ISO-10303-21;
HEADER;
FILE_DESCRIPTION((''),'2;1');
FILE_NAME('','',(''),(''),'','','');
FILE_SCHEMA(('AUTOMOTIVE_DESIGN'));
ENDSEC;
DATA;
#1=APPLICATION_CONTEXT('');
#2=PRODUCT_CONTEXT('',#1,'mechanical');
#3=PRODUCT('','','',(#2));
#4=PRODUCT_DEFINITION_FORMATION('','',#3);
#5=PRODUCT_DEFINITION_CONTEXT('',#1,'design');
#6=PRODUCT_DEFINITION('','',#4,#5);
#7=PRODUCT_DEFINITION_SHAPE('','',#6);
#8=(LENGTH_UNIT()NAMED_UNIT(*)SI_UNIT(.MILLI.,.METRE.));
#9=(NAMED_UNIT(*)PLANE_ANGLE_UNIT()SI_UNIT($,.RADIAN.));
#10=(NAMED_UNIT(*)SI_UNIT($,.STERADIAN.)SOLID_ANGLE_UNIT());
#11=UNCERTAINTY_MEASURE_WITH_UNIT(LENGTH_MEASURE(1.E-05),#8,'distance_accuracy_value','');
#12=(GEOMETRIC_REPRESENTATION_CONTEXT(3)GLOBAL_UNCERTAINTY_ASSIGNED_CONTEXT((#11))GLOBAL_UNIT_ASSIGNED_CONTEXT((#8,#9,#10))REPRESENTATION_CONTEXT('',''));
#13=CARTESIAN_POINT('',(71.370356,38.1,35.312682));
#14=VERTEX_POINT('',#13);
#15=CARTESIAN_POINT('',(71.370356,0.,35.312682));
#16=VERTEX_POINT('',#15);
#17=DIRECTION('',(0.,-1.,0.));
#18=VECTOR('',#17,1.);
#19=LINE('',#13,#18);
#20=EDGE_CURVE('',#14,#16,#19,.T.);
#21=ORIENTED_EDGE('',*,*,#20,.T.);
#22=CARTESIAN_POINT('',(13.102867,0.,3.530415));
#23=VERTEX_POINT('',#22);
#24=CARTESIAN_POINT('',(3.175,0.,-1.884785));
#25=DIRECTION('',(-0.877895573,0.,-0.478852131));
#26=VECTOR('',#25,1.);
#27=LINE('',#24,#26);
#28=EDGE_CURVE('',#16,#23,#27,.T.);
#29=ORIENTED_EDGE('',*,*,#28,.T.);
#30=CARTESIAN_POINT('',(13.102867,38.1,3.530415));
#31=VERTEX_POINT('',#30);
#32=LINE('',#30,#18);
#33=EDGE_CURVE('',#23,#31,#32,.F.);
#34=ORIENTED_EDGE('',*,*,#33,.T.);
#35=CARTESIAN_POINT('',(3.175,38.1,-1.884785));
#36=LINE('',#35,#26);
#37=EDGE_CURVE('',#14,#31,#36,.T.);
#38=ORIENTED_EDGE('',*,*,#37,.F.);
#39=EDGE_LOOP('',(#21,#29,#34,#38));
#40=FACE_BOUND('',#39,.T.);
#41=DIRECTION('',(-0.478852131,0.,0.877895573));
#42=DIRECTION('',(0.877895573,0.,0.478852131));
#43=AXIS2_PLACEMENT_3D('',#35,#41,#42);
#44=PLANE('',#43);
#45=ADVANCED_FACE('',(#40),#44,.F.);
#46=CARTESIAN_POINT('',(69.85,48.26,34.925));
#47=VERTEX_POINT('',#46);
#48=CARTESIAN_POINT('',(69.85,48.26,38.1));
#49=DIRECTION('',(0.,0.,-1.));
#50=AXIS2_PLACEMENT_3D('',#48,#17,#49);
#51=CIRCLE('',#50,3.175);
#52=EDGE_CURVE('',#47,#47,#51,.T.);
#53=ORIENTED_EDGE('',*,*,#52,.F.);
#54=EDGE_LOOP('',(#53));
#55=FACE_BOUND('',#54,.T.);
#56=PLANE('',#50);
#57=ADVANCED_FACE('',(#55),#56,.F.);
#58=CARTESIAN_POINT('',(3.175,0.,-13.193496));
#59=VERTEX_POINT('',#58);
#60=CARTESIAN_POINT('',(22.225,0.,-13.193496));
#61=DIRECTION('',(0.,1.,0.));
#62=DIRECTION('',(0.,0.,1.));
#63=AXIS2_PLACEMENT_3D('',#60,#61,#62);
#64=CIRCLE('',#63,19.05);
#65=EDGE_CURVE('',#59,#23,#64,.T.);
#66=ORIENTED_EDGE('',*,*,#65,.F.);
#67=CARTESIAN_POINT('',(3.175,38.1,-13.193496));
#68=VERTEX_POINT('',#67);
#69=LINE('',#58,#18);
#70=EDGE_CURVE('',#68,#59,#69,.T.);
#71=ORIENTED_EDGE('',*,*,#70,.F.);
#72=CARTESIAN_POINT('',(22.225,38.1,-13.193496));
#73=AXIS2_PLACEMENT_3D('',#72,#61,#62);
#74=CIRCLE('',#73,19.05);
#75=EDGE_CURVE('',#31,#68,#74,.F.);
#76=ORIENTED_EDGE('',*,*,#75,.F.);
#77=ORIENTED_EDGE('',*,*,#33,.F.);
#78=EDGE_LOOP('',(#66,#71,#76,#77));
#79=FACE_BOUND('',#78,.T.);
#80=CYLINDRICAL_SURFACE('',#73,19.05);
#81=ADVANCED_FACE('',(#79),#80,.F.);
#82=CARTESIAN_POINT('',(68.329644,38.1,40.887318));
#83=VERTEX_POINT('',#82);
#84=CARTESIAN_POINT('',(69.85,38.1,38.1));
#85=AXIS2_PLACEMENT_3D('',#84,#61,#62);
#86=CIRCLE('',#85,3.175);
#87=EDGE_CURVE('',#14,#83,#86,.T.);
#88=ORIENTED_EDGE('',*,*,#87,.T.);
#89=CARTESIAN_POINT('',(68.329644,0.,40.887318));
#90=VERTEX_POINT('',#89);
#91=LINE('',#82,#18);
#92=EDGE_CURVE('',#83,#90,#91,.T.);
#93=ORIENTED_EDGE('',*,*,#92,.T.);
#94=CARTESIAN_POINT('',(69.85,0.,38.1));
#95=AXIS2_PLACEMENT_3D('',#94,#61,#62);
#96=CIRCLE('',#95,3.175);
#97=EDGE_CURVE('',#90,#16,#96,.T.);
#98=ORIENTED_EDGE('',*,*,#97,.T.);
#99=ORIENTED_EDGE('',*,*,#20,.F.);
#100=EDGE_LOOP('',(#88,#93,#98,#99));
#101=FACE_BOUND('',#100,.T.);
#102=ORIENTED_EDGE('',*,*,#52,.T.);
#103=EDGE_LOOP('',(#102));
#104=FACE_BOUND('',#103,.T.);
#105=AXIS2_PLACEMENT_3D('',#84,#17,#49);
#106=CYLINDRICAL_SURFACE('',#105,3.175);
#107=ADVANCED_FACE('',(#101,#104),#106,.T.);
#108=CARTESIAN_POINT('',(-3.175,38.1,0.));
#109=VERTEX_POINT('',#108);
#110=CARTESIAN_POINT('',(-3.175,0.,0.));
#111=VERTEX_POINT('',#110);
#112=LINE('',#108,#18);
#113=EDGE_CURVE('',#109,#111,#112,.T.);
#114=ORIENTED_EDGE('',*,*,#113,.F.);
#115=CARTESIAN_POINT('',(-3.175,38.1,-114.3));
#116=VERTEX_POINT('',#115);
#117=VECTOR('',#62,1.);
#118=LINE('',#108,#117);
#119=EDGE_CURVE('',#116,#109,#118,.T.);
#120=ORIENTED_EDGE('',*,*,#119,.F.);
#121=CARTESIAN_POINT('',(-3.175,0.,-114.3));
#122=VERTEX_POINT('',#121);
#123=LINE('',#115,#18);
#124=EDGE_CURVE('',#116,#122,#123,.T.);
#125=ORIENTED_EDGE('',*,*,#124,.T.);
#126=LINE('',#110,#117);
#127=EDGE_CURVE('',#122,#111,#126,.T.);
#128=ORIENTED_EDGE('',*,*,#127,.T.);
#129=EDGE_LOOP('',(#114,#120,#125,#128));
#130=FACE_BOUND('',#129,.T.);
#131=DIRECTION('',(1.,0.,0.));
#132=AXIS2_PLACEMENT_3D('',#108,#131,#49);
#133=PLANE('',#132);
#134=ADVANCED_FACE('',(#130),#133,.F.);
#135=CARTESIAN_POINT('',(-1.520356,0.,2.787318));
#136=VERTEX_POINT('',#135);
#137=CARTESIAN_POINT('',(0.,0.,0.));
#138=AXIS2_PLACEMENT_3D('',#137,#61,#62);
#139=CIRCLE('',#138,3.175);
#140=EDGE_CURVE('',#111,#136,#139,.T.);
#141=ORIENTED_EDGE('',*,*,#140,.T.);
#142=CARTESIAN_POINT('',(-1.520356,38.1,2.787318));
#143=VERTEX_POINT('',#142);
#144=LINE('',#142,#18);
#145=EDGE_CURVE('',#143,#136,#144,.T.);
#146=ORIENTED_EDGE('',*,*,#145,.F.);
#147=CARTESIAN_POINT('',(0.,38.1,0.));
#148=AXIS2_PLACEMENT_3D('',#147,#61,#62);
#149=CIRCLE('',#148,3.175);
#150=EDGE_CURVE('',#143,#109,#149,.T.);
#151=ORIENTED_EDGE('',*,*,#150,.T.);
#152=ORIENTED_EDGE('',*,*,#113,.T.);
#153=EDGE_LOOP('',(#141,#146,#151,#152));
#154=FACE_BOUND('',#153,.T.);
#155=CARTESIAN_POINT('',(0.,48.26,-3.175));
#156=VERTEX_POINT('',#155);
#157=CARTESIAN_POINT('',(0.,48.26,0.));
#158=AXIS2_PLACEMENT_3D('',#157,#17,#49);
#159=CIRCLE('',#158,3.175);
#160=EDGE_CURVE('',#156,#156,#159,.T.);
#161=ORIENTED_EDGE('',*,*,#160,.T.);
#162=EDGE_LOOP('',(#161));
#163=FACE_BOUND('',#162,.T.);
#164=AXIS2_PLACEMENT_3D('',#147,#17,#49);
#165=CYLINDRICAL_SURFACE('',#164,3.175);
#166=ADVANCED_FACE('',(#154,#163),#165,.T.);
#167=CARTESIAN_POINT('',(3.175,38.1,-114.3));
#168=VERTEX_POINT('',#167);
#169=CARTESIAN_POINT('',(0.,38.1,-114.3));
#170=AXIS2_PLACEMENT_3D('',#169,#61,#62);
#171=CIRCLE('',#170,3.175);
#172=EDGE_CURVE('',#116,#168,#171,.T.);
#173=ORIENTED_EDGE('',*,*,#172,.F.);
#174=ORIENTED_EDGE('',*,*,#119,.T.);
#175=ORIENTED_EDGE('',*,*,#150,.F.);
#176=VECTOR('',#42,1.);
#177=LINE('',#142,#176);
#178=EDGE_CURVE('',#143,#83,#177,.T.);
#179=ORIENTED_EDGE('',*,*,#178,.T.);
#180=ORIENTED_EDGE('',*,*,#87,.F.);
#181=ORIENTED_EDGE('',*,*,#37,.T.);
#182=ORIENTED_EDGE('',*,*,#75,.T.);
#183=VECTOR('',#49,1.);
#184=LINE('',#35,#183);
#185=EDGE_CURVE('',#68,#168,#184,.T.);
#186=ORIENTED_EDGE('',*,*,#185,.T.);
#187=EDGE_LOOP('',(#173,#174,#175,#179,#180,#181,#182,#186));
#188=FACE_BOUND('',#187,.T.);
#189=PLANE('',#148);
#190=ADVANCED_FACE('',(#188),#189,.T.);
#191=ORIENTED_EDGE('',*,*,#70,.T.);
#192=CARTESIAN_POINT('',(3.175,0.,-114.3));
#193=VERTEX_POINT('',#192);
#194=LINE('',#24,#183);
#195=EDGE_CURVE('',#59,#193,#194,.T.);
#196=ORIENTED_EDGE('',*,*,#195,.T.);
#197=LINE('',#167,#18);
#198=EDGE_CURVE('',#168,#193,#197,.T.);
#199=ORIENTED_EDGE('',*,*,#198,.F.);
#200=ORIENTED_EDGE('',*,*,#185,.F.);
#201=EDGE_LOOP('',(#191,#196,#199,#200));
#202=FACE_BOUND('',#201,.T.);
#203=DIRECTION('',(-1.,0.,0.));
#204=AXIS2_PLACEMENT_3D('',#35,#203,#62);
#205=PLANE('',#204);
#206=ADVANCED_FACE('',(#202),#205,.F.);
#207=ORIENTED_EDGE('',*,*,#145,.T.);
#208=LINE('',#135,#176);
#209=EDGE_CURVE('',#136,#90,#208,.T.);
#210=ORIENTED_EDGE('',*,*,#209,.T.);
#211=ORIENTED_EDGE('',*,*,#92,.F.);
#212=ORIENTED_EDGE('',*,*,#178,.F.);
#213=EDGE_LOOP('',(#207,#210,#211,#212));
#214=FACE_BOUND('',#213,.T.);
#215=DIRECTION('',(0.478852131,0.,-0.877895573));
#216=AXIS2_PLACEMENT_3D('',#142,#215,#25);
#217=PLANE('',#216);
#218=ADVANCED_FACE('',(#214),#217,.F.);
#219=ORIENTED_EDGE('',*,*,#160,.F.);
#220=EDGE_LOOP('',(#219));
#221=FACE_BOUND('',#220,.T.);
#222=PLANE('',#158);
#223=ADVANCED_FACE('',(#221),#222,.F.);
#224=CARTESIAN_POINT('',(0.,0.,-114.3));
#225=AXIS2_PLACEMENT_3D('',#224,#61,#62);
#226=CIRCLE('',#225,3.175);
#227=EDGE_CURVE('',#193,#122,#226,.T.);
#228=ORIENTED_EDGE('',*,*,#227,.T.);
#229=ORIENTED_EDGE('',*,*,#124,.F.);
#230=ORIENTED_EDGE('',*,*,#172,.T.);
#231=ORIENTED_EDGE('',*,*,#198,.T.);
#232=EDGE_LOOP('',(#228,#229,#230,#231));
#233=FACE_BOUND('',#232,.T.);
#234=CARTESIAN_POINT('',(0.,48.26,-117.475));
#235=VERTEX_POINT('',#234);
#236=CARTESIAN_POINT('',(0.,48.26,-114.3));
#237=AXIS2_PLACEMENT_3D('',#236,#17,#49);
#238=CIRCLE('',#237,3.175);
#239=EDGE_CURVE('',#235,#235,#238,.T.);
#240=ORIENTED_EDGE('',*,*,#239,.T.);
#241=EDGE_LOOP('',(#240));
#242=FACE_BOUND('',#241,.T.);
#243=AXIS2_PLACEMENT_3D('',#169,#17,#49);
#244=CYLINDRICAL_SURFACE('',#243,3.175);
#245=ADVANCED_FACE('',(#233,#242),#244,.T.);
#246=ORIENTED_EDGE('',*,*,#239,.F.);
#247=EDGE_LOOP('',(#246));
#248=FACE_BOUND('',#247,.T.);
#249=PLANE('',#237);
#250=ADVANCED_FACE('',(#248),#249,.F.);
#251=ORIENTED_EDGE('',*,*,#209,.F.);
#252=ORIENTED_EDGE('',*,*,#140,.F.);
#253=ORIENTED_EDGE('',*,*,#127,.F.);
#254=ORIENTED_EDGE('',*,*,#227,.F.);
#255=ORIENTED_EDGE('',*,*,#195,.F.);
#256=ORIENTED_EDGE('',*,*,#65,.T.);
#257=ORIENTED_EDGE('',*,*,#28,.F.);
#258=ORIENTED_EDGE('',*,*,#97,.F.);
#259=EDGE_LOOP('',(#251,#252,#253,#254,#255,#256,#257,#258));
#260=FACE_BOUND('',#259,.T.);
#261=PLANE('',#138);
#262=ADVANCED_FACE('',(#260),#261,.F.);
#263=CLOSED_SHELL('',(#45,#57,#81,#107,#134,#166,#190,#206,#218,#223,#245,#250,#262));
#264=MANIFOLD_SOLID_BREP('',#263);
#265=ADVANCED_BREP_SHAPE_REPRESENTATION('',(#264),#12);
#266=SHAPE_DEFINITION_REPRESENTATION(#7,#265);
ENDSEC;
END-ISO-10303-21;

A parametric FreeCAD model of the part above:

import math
import FreeCAD as App
import Part
import Sketcher

V = App.Vector
Q = App.Units.Quantity


def edges_at(feature, points):
    """Names of the edges that pass closest to the given points."""
    edges = feature.Shape.Edges
    near = lambda p: min(range(len(edges)), key=lambda i: edges[i].distToShape(Part.Vertex(*p))[0])
    return sorted({f"Edge{near(p) + 1}" for p in points})

doc = App.newDocument("Part")
body = doc.addObject("PartDesign::Body", "Body")

# Sketch on XZ plane
sketch1 = body.newObject("Sketcher::SketchObject", "Sketch")
sketch1.AttachmentSupport = (doc.getObject("XZ_Plane"), [""])
sketch1.MapMode = "FlatFace"
sketch1.addGeometry([
    Part.LineSegment(V(-3.2, -114.3, 0), V(-3.2, 0, 0)),  # 0
    Part.ArcOfCircle(Part.Circle(V(0, 0, 0), V(0, 0, 1), 3.2), math.radians(119), math.radians(180)),  # 1
    Part.LineSegment(V(-1.5, 2.8, 0), V(68.3, 40.9, 0)),  # 2
    Part.ArcOfCircle(Part.Circle(V(69.8, 38.1, 0), V(0, 0, 1), 3.2), math.radians(-61), math.radians(119)),  # 3
    Part.LineSegment(V(71.4, 35.3, 0), V(3.2, -1.9, 0)),  # 4
    Part.LineSegment(V(3.2, -1.9, 0), V(3.2, -114.3, 0)),  # 5
    Part.ArcOfCircle(Part.Circle(V(0, -114.3, 0), V(0, 0, 1), 3.2), math.radians(180), math.radians(360)),  # 6
], False)
sketch1.addConstraint([
    Sketcher.Constraint("Tangent", 0, 2, 1, 2),
    Sketcher.Constraint("Tangent", 1, 1, 2, 1),
    Sketcher.Constraint("Tangent", 2, 2, 3, 2),
    Sketcher.Constraint("Tangent", 3, 1, 4, 1),
    Sketcher.Constraint("Coincident", 4, 2, 5, 1),
    Sketcher.Constraint("Tangent", 5, 2, 6, 2),
    Sketcher.Constraint("Tangent", 6, 1, 0, 1),
    Sketcher.Constraint("Vertical", 0),
    Sketcher.Constraint("Vertical", 5),
    Sketcher.Constraint("Coincident", 1, 3, -1, 1),
    Sketcher.Constraint("Equal", 1, 3),
    Sketcher.Constraint("Equal", 3, 6),
    Sketcher.Constraint("Parallel", 2, 4),
    Sketcher.Constraint("DistanceY", 0, 1, 0, 2, Q("4.5 in")),
    Sketcher.Constraint("Radius", 1, Q("0.125 in")),
    Sketcher.Constraint("DistanceY", 6, 3, 3, 3, Q("6 in")),
    Sketcher.Constraint("DistanceX", -1, 1, 3, 3, Q("2.75 in")),
])
pad1 = body.newObject("PartDesign::Pad", "Pad")
pad1.Profile = sketch1
pad1.Length = Q("1.5 in")
pad1.Reversed = True

# Sketch on XZ plane
sketch2 = body.newObject("Sketcher::SketchObject", "Sketch001")
sketch2.AttachmentSupport = (doc.getObject("XZ_Plane"), [""])
sketch2.MapMode = "FlatFace"
sketch2.addGeometry([
    Part.Circle(V(0, -114.3, 0), V(0, 0, 1), 3.2),
    Part.Circle(V(0, 0, 0), V(0, 0, 1), 3.2),
    Part.Circle(V(69.8, 38.1, 0), V(0, 0, 1), 3.2),
], False)
sketch2.addConstraint([
    Sketcher.Constraint("Coincident", 1, 3, -1, 1),
    Sketcher.Constraint("Equal", 0, 1),
    Sketcher.Constraint("Equal", 1, 2),
    Sketcher.Constraint("PointOnObject", 0, 3, -2),
    Sketcher.Constraint("Diameter", 0, Q("0.25 in")),
    Sketcher.Constraint("DistanceY", 0, 3, 2, 3, Q("6 in")),
    Sketcher.Constraint("DistanceY", 0, 3, -1, 1, Q("4.5 in")),
    Sketcher.Constraint("DistanceX", -1, 1, 2, 3, Q("2.75 in")),
])
pad2 = body.newObject("PartDesign::Pad", "Pad001")
pad2.Profile = sketch2
pad2.Length = Q("1.9 in")
pad2.Reversed = True
doc.recompute()

fillet = body.newObject("PartDesign::Fillet", "Fillet")
fillet.Base = (pad2, edges_at(pad2, [(3.175, 19.05, -1.885)]))
fillet.Radius = Q("0.75 in")

doc.recompute()
